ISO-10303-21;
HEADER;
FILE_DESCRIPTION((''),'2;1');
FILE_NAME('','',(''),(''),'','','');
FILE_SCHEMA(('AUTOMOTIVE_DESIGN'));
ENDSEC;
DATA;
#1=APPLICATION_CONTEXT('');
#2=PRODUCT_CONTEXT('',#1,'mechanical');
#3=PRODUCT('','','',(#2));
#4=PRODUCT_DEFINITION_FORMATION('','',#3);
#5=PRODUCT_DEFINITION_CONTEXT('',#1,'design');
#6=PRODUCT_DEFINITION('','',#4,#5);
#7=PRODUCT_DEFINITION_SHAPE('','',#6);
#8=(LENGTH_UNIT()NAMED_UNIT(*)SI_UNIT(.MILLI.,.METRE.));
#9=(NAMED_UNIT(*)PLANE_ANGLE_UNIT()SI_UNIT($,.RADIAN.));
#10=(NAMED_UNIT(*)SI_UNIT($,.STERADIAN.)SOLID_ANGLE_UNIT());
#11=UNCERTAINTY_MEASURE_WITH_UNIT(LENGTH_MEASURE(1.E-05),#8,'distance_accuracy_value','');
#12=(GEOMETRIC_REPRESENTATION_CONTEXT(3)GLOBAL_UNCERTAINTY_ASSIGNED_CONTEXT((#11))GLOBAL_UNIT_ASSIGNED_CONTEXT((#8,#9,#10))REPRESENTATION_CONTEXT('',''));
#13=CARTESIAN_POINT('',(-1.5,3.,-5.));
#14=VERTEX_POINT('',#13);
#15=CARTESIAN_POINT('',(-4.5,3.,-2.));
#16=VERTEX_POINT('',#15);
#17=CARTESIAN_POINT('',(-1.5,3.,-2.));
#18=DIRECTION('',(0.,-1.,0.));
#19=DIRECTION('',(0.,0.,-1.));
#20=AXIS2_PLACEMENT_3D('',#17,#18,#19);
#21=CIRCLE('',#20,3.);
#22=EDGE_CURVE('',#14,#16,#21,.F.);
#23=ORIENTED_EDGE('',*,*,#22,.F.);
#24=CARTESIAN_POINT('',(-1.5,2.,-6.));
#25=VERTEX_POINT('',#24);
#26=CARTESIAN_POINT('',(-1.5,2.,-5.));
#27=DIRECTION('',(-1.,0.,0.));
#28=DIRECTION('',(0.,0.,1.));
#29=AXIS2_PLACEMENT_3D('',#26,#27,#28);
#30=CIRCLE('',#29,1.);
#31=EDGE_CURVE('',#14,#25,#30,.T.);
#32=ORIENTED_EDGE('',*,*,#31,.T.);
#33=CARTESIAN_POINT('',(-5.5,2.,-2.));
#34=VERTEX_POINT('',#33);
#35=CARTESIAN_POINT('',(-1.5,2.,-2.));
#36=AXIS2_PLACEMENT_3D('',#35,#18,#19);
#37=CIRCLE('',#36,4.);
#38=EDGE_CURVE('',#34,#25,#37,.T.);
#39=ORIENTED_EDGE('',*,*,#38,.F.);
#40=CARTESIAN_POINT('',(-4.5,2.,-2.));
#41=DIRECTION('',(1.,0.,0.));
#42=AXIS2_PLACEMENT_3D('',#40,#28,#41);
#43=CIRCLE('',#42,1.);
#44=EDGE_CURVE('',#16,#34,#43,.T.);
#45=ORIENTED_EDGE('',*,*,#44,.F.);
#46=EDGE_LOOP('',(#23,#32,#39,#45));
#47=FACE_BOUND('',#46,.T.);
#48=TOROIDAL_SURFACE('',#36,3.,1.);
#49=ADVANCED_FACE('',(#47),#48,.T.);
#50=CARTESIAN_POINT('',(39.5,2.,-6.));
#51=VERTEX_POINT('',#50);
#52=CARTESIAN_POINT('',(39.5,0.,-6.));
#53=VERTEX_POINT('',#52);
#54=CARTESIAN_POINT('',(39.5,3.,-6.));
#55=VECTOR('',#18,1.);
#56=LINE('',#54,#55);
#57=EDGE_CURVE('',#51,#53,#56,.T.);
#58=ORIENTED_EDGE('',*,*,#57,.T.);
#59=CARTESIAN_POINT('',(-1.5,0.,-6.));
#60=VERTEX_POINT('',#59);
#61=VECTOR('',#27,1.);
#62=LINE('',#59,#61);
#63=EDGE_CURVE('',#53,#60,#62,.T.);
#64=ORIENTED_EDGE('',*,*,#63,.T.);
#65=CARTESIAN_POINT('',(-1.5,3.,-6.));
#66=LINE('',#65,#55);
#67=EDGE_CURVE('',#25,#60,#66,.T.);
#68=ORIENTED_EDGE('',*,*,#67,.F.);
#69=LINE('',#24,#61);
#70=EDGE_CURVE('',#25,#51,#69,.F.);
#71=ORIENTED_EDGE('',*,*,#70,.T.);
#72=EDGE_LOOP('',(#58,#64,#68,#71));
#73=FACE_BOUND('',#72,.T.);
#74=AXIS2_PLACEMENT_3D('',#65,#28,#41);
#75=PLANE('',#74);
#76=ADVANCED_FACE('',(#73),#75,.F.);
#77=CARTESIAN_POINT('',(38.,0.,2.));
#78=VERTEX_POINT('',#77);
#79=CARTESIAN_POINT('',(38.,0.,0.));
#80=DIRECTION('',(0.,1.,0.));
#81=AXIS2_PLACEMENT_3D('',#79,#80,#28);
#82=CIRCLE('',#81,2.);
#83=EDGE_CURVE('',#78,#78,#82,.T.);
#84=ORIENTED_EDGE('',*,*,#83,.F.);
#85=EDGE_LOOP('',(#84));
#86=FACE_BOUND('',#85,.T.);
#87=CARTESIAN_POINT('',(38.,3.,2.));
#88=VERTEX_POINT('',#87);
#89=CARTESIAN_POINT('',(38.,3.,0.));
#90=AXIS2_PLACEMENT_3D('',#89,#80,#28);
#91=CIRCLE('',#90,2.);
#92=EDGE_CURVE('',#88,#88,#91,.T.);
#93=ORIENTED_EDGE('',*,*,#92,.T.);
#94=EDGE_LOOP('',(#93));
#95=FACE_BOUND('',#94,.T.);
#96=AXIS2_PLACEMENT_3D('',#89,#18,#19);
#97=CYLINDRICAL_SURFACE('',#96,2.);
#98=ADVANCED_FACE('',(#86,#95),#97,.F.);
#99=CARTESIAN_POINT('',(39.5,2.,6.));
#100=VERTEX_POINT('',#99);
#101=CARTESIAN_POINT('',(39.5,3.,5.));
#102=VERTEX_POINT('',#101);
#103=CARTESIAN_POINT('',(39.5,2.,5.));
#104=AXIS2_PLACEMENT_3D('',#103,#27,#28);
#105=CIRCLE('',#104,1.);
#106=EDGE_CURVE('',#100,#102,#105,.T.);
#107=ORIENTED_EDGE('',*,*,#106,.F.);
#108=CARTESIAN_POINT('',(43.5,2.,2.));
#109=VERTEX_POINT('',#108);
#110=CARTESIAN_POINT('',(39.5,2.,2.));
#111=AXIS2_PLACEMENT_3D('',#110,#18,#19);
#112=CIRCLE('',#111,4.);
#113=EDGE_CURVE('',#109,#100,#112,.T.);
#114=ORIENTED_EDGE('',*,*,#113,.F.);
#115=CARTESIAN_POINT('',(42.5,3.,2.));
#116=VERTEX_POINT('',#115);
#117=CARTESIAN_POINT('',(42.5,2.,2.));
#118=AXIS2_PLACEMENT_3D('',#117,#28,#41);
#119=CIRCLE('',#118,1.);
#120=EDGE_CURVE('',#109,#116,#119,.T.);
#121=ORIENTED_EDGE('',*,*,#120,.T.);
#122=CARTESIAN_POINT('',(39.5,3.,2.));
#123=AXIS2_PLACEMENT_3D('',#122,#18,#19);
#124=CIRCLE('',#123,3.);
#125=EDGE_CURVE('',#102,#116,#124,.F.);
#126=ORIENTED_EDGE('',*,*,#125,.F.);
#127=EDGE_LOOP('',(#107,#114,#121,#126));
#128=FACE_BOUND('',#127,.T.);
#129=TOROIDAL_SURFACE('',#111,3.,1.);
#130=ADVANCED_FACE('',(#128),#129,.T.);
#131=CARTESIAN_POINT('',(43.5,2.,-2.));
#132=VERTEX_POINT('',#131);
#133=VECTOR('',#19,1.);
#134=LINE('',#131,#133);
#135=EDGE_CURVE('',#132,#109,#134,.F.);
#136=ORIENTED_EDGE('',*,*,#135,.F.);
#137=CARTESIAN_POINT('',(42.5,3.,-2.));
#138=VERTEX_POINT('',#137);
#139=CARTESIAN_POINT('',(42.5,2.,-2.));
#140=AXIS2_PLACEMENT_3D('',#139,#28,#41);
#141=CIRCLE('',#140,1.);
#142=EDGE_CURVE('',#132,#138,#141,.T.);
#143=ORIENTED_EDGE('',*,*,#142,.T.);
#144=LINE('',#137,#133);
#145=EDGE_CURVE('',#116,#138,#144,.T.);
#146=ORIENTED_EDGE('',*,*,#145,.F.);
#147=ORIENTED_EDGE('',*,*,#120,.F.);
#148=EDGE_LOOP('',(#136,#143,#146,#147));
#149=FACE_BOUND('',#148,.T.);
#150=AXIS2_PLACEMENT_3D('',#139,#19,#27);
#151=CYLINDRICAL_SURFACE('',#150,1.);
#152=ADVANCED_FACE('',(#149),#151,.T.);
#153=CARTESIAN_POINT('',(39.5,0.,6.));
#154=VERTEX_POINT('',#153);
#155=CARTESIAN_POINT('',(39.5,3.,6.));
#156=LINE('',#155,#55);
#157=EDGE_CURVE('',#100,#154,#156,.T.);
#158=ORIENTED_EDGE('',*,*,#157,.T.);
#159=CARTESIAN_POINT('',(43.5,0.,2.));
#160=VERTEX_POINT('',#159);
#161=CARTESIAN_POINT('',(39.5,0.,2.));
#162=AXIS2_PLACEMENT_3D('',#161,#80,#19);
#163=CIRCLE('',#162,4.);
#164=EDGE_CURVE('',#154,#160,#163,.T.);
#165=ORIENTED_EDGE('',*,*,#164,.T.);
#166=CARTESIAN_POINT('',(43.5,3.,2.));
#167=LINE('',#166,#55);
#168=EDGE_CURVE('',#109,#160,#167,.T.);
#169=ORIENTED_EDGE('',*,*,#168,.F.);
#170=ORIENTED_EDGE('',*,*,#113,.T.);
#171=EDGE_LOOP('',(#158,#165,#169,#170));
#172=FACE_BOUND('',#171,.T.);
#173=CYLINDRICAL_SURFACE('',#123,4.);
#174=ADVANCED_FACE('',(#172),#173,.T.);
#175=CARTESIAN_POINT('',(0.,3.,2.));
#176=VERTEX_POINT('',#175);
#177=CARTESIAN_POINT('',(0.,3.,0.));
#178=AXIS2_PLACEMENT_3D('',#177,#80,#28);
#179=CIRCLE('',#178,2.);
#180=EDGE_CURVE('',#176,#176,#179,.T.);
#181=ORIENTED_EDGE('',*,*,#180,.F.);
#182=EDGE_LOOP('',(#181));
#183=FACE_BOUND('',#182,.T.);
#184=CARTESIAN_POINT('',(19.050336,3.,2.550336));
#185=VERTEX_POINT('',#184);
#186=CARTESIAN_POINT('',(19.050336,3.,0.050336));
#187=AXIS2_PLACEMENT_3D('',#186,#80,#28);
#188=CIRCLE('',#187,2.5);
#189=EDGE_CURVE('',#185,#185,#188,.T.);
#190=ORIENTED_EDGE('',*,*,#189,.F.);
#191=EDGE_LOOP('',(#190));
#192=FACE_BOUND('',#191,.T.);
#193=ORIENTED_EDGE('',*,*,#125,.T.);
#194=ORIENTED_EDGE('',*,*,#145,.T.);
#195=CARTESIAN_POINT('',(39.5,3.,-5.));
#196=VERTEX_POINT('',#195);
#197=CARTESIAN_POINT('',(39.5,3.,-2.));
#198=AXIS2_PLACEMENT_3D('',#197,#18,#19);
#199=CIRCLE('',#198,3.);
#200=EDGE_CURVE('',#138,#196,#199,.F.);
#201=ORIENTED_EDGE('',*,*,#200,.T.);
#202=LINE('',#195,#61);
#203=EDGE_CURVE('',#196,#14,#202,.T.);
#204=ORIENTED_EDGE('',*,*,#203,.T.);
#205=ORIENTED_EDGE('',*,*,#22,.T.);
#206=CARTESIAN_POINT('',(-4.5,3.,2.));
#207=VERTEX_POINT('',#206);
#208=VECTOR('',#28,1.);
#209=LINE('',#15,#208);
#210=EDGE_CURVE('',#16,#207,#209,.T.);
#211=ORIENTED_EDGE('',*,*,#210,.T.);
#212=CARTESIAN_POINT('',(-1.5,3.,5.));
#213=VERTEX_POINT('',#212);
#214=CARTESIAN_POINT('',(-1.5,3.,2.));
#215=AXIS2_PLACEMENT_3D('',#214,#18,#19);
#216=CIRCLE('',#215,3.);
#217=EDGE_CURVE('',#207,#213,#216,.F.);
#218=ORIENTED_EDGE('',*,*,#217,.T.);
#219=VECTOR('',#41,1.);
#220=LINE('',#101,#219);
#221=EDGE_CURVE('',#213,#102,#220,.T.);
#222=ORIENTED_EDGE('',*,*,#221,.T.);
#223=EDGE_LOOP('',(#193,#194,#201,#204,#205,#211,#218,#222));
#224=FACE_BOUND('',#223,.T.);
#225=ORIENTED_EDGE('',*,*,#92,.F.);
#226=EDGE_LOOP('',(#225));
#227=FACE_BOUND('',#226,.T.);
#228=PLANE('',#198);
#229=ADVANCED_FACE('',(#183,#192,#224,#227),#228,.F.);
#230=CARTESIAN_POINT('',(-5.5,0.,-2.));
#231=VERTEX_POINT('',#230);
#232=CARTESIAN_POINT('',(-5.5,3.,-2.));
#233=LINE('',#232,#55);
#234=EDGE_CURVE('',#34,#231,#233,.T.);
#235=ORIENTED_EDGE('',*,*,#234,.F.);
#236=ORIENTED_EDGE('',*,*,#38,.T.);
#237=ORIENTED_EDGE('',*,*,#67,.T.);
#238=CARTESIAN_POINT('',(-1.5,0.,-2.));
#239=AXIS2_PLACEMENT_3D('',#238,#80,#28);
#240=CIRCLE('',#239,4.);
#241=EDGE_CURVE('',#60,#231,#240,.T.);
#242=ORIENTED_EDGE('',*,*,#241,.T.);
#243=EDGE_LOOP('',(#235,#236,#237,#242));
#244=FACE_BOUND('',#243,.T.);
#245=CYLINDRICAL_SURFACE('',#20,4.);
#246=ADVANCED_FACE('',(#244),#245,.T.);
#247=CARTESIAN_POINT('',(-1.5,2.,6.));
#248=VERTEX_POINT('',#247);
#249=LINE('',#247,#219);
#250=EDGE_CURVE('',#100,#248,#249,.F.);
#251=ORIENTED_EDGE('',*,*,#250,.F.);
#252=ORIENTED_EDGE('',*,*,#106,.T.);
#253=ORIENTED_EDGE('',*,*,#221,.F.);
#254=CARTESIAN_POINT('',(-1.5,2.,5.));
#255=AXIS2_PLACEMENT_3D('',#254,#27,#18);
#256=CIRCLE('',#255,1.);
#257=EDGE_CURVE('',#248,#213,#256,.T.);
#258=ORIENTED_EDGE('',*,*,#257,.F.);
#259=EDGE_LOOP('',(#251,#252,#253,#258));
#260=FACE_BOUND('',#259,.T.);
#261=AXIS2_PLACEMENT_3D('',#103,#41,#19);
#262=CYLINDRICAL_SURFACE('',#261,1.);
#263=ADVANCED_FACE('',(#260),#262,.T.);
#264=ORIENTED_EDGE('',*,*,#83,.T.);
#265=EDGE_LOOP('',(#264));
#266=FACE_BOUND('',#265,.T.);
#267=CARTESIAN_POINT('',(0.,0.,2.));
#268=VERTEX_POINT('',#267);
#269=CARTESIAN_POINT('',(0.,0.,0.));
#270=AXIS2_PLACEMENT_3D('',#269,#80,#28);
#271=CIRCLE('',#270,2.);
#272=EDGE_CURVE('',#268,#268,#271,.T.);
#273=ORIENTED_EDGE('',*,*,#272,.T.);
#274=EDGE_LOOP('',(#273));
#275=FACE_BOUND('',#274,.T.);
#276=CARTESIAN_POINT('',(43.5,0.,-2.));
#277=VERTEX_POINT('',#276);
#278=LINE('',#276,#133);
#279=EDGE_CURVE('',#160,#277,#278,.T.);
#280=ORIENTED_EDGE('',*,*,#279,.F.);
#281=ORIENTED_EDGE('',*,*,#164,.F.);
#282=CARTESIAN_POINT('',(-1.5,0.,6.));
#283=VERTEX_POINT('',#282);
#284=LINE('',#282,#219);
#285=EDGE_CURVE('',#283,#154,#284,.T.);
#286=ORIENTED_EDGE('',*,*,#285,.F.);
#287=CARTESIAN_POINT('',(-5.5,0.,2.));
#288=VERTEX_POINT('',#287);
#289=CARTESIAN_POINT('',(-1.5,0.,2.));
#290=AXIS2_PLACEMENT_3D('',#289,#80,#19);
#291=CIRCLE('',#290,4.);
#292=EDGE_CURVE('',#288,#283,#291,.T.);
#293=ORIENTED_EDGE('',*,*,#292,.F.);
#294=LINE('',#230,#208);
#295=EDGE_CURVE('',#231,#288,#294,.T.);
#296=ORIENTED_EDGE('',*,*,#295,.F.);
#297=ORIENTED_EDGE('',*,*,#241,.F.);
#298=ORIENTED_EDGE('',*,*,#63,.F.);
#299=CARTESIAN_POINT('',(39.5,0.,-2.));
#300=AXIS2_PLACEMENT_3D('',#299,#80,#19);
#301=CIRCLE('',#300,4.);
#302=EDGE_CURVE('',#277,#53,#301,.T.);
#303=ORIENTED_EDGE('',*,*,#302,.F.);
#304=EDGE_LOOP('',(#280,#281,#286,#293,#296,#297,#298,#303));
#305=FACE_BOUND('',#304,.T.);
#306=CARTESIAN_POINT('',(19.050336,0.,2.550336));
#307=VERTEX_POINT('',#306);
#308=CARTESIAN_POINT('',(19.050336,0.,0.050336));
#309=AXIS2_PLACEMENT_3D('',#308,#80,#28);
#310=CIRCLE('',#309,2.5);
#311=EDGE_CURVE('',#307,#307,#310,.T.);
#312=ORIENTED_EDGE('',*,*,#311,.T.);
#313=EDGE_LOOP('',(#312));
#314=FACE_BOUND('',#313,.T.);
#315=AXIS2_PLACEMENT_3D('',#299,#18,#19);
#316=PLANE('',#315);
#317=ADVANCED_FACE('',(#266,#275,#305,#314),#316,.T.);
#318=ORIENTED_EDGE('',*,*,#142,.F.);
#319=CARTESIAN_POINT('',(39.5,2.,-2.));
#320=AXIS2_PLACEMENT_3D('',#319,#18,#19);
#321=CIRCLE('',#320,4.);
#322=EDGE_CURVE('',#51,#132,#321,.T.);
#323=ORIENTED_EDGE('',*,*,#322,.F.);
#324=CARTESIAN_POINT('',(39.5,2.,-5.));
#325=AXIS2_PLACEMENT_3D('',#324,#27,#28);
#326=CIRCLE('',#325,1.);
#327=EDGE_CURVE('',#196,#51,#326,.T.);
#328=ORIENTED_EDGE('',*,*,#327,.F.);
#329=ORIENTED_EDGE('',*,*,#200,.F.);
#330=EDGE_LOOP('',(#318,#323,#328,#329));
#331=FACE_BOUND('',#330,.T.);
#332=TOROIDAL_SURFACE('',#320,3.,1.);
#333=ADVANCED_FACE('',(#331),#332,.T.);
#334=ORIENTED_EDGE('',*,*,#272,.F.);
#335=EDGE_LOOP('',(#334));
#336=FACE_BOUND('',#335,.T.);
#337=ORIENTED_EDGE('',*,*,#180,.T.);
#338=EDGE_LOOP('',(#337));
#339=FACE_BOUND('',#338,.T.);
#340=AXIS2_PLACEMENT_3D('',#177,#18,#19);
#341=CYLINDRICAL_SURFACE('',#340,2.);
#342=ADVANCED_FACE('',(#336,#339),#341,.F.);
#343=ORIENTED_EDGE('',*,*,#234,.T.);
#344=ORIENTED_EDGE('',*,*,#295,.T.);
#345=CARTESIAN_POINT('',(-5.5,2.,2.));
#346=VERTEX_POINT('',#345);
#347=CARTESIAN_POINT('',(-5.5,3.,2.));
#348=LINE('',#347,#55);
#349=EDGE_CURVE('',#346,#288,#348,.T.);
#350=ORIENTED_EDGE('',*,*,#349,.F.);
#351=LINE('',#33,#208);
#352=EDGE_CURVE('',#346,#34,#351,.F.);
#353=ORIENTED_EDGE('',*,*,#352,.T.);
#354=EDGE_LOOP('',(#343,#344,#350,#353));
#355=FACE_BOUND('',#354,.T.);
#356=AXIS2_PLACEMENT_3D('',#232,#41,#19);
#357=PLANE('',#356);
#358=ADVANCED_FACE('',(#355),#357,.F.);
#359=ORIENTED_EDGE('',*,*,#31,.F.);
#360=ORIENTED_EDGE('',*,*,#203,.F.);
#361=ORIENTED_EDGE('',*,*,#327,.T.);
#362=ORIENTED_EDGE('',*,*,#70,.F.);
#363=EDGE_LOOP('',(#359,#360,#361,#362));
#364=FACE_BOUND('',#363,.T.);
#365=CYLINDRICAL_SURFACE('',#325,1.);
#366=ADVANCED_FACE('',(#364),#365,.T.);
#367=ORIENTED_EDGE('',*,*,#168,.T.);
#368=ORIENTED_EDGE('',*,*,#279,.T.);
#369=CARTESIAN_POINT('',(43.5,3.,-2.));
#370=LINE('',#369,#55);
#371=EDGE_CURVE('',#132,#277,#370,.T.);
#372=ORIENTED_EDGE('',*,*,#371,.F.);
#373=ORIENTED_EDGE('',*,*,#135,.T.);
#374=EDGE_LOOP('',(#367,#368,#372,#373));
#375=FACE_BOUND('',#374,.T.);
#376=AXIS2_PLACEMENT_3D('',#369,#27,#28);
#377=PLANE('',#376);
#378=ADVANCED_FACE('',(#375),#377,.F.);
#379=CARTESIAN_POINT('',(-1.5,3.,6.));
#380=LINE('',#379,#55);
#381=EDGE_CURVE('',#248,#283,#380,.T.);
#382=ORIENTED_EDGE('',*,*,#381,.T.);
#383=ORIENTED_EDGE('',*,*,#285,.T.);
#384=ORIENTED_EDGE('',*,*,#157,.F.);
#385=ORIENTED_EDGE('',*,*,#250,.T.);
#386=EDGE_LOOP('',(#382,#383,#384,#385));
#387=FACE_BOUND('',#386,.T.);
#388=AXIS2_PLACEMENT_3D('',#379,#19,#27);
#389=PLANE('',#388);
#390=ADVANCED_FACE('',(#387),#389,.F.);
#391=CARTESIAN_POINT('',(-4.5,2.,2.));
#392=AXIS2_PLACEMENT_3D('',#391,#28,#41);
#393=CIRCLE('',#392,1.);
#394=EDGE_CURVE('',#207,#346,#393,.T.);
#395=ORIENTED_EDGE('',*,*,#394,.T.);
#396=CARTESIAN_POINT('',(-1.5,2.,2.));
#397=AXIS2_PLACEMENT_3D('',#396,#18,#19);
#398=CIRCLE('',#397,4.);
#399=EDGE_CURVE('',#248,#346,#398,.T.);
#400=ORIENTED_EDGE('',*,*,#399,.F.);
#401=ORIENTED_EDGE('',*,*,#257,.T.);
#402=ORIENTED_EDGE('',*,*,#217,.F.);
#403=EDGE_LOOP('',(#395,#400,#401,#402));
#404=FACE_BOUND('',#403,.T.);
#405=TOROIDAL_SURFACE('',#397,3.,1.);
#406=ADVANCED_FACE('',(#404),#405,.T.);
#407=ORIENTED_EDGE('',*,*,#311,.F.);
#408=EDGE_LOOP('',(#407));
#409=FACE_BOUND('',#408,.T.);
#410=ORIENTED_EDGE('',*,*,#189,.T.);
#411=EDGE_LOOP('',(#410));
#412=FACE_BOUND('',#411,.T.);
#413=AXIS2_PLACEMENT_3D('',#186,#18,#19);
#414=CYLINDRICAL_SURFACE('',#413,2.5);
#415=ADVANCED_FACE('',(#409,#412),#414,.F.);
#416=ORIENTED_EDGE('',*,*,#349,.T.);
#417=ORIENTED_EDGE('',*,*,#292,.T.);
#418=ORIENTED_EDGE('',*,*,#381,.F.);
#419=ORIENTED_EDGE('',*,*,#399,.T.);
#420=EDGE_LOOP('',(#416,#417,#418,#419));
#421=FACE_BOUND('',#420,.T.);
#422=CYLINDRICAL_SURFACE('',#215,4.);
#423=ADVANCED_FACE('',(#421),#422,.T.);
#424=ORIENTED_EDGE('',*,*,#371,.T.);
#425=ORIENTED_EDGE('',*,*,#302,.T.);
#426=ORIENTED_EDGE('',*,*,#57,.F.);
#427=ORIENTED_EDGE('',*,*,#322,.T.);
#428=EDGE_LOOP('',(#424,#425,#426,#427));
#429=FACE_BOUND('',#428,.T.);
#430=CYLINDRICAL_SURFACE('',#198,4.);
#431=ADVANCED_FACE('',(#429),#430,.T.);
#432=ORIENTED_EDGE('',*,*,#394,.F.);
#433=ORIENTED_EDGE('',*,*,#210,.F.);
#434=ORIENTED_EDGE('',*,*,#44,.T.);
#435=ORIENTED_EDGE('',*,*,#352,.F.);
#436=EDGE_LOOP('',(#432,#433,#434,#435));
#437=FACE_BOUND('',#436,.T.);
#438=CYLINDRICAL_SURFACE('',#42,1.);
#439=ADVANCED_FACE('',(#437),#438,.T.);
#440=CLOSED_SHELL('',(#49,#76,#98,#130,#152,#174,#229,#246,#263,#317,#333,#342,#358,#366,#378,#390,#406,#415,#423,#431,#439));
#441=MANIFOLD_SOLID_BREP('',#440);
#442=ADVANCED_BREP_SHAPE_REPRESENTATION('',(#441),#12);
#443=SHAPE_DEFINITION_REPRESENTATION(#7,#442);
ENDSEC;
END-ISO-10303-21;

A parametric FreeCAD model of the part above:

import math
import FreeCAD as App
import Part
import Sketcher
Q = App.Units.Quantity


def edges_at(feature, points):
    """Names of the edges that pass closest to the given points."""
    edges = feature.Shape.Edges
    near = lambda p: min(range(len(edges)), key=lambda i: edges[i].distToShape(Part.Vertex(*p))[0])
    return sorted({f"Edge{near(p) + 1}" for p in points})

doc = App.newDocument("Part")
body = doc.addObject("PartDesign::Body", "Body")

sketch1 = doc.addObject("Sketcher::SketchObject", "Sketch")
body.addObject(sketch1)
sketch1.AttachmentSupport = (doc.XZ_Plane, [""])
sketch1.MapMode = "FlatFace"
sketch1.addGeometry([
    Part.LineSegment(App.Vector(-5.5, -2, 0), App.Vector(-5.5, 2, 0)),
    Part.ArcOfCircle(Part.Circle(App.Vector(-1.5, 2, 0), App.Vector(0, 0, 1), 4), math.radians(90), math.radians(180)),
    Part.LineSegment(App.Vector(-1.5, 6, 0), App.Vector(39.5, 6, 0)),
    Part.ArcOfCircle(Part.Circle(App.Vector(39.5, 2, 0), App.Vector(0, 0, 1), 4), math.radians(0), math.radians(90)),
    Part.LineSegment(App.Vector(43.5, 2, 0), App.Vector(43.5, -2, 0)),
    Part.ArcOfCircle(Part.Circle(App.Vector(39.5, -2, 0), App.Vector(0, 0, 1), 4), math.radians(-90), math.radians(0)),
    Part.LineSegment(App.Vector(39.5, -6, 0), App.Vector(-1.5, -6, 0)),
    Part.ArcOfCircle(Part.Circle(App.Vector(-1.5, -2, 0), App.Vector(0, 0, 1), 4), math.radians(180), math.radians(270)),
    Part.Circle(App.Vector(0, 0, 0), App.Vector(0, 0, 1), 2),
    Part.Circle(App.Vector(19.1, 0.1, 0), App.Vector(0, 0, 1), 2.5),
    Part.Circle(App.Vector(38, 0, 0), App.Vector(0, 0, 1), 2),
], False)
sketch1.addConstraint([
    Sketcher.Constraint("Tangent", 0, 2, 1, 2),
    Sketcher.Constraint("Tangent", 1, 1, 2, 1),
    Sketcher.Constraint("Tangent", 2, 2, 3, 2),
    Sketcher.Constraint("Tangent", 3, 1, 4, 1),
    Sketcher.Constraint("Tangent", 4, 2, 5, 2),
    Sketcher.Constraint("Tangent", 5, 1, 6, 1),
    Sketcher.Constraint("Tangent", 6, 2, 7, 2),
    Sketcher.Constraint("Tangent", 7, 1, 0, 1),
    Sketcher.Constraint("Vertical", 0),
    Sketcher.Constraint("Horizontal", 2),
    Sketcher.Constraint("Vertical", 4),
    Sketcher.Constraint("Horizontal", 6),
    Sketcher.Constraint("Coincident", 8, 3, -1, 1),
    Sketcher.Constraint("Equal", 1, 3),
    Sketcher.Constraint("Equal", 3, 5),
    Sketcher.Constraint("Equal", 5, 7),
    Sketcher.Constraint("Equal", 8, 10),
    Sketcher.Constraint("PointOnObject", 10, 3, -1),
    Sketcher.Constraint("Diameter", 8, Q("4 mm")),
    Sketcher.Constraint("Diameter", 9, Q("5 mm")),
    Sketcher.Constraint("Radius", 1, Q("4 mm")),
    Sketcher.Constraint("DistanceX", 2, 1, 2, 2, Q("41 mm")),
    Sketcher.Constraint("DistanceY", 0, 1, 0, 2, Q("4 mm")),
    Sketcher.Constraint("DistanceY", -1, 1, 1, 3, Q("2 mm")),
    Sketcher.Constraint("DistanceX", -1, 1, 10, 3, Q("38 mm")),
    Sketcher.Constraint("DistanceX", 1, 3, -1, 1, Q("1.5 mm")),
    Sketcher.Constraint("DistanceX", -1, 1, 9, 3, Q("19.050336 mm")),
    Sketcher.Constraint("DistanceY", -1, 1, 9, 3, Q("0.050336 mm")),
])
pad1 = doc.addObject("PartDesign::Pad", "Pad")
body.addObject(pad1)
pad1.Profile = sketch1
pad1.Length = 3
pad1.Reversed = True
doc.recompute()

fillet = doc.addObject("PartDesign::Fillet", "Fillet")
body.addObject(fillet)
fillet.Base = (pad1, edges_at(pad1, [
    (-4.328, 3, -4.828),
    (-5.5, 3, 0),
    (-4.328, 3, 4.828),
    (19, 3, 6),
    (42.328, 3, 4.828),
    (43.5, 3, 0),
    (42.328, 3, -4.828),
    (19, 3, -6),
]))
fillet.Radius = 1

doc.recompute()
